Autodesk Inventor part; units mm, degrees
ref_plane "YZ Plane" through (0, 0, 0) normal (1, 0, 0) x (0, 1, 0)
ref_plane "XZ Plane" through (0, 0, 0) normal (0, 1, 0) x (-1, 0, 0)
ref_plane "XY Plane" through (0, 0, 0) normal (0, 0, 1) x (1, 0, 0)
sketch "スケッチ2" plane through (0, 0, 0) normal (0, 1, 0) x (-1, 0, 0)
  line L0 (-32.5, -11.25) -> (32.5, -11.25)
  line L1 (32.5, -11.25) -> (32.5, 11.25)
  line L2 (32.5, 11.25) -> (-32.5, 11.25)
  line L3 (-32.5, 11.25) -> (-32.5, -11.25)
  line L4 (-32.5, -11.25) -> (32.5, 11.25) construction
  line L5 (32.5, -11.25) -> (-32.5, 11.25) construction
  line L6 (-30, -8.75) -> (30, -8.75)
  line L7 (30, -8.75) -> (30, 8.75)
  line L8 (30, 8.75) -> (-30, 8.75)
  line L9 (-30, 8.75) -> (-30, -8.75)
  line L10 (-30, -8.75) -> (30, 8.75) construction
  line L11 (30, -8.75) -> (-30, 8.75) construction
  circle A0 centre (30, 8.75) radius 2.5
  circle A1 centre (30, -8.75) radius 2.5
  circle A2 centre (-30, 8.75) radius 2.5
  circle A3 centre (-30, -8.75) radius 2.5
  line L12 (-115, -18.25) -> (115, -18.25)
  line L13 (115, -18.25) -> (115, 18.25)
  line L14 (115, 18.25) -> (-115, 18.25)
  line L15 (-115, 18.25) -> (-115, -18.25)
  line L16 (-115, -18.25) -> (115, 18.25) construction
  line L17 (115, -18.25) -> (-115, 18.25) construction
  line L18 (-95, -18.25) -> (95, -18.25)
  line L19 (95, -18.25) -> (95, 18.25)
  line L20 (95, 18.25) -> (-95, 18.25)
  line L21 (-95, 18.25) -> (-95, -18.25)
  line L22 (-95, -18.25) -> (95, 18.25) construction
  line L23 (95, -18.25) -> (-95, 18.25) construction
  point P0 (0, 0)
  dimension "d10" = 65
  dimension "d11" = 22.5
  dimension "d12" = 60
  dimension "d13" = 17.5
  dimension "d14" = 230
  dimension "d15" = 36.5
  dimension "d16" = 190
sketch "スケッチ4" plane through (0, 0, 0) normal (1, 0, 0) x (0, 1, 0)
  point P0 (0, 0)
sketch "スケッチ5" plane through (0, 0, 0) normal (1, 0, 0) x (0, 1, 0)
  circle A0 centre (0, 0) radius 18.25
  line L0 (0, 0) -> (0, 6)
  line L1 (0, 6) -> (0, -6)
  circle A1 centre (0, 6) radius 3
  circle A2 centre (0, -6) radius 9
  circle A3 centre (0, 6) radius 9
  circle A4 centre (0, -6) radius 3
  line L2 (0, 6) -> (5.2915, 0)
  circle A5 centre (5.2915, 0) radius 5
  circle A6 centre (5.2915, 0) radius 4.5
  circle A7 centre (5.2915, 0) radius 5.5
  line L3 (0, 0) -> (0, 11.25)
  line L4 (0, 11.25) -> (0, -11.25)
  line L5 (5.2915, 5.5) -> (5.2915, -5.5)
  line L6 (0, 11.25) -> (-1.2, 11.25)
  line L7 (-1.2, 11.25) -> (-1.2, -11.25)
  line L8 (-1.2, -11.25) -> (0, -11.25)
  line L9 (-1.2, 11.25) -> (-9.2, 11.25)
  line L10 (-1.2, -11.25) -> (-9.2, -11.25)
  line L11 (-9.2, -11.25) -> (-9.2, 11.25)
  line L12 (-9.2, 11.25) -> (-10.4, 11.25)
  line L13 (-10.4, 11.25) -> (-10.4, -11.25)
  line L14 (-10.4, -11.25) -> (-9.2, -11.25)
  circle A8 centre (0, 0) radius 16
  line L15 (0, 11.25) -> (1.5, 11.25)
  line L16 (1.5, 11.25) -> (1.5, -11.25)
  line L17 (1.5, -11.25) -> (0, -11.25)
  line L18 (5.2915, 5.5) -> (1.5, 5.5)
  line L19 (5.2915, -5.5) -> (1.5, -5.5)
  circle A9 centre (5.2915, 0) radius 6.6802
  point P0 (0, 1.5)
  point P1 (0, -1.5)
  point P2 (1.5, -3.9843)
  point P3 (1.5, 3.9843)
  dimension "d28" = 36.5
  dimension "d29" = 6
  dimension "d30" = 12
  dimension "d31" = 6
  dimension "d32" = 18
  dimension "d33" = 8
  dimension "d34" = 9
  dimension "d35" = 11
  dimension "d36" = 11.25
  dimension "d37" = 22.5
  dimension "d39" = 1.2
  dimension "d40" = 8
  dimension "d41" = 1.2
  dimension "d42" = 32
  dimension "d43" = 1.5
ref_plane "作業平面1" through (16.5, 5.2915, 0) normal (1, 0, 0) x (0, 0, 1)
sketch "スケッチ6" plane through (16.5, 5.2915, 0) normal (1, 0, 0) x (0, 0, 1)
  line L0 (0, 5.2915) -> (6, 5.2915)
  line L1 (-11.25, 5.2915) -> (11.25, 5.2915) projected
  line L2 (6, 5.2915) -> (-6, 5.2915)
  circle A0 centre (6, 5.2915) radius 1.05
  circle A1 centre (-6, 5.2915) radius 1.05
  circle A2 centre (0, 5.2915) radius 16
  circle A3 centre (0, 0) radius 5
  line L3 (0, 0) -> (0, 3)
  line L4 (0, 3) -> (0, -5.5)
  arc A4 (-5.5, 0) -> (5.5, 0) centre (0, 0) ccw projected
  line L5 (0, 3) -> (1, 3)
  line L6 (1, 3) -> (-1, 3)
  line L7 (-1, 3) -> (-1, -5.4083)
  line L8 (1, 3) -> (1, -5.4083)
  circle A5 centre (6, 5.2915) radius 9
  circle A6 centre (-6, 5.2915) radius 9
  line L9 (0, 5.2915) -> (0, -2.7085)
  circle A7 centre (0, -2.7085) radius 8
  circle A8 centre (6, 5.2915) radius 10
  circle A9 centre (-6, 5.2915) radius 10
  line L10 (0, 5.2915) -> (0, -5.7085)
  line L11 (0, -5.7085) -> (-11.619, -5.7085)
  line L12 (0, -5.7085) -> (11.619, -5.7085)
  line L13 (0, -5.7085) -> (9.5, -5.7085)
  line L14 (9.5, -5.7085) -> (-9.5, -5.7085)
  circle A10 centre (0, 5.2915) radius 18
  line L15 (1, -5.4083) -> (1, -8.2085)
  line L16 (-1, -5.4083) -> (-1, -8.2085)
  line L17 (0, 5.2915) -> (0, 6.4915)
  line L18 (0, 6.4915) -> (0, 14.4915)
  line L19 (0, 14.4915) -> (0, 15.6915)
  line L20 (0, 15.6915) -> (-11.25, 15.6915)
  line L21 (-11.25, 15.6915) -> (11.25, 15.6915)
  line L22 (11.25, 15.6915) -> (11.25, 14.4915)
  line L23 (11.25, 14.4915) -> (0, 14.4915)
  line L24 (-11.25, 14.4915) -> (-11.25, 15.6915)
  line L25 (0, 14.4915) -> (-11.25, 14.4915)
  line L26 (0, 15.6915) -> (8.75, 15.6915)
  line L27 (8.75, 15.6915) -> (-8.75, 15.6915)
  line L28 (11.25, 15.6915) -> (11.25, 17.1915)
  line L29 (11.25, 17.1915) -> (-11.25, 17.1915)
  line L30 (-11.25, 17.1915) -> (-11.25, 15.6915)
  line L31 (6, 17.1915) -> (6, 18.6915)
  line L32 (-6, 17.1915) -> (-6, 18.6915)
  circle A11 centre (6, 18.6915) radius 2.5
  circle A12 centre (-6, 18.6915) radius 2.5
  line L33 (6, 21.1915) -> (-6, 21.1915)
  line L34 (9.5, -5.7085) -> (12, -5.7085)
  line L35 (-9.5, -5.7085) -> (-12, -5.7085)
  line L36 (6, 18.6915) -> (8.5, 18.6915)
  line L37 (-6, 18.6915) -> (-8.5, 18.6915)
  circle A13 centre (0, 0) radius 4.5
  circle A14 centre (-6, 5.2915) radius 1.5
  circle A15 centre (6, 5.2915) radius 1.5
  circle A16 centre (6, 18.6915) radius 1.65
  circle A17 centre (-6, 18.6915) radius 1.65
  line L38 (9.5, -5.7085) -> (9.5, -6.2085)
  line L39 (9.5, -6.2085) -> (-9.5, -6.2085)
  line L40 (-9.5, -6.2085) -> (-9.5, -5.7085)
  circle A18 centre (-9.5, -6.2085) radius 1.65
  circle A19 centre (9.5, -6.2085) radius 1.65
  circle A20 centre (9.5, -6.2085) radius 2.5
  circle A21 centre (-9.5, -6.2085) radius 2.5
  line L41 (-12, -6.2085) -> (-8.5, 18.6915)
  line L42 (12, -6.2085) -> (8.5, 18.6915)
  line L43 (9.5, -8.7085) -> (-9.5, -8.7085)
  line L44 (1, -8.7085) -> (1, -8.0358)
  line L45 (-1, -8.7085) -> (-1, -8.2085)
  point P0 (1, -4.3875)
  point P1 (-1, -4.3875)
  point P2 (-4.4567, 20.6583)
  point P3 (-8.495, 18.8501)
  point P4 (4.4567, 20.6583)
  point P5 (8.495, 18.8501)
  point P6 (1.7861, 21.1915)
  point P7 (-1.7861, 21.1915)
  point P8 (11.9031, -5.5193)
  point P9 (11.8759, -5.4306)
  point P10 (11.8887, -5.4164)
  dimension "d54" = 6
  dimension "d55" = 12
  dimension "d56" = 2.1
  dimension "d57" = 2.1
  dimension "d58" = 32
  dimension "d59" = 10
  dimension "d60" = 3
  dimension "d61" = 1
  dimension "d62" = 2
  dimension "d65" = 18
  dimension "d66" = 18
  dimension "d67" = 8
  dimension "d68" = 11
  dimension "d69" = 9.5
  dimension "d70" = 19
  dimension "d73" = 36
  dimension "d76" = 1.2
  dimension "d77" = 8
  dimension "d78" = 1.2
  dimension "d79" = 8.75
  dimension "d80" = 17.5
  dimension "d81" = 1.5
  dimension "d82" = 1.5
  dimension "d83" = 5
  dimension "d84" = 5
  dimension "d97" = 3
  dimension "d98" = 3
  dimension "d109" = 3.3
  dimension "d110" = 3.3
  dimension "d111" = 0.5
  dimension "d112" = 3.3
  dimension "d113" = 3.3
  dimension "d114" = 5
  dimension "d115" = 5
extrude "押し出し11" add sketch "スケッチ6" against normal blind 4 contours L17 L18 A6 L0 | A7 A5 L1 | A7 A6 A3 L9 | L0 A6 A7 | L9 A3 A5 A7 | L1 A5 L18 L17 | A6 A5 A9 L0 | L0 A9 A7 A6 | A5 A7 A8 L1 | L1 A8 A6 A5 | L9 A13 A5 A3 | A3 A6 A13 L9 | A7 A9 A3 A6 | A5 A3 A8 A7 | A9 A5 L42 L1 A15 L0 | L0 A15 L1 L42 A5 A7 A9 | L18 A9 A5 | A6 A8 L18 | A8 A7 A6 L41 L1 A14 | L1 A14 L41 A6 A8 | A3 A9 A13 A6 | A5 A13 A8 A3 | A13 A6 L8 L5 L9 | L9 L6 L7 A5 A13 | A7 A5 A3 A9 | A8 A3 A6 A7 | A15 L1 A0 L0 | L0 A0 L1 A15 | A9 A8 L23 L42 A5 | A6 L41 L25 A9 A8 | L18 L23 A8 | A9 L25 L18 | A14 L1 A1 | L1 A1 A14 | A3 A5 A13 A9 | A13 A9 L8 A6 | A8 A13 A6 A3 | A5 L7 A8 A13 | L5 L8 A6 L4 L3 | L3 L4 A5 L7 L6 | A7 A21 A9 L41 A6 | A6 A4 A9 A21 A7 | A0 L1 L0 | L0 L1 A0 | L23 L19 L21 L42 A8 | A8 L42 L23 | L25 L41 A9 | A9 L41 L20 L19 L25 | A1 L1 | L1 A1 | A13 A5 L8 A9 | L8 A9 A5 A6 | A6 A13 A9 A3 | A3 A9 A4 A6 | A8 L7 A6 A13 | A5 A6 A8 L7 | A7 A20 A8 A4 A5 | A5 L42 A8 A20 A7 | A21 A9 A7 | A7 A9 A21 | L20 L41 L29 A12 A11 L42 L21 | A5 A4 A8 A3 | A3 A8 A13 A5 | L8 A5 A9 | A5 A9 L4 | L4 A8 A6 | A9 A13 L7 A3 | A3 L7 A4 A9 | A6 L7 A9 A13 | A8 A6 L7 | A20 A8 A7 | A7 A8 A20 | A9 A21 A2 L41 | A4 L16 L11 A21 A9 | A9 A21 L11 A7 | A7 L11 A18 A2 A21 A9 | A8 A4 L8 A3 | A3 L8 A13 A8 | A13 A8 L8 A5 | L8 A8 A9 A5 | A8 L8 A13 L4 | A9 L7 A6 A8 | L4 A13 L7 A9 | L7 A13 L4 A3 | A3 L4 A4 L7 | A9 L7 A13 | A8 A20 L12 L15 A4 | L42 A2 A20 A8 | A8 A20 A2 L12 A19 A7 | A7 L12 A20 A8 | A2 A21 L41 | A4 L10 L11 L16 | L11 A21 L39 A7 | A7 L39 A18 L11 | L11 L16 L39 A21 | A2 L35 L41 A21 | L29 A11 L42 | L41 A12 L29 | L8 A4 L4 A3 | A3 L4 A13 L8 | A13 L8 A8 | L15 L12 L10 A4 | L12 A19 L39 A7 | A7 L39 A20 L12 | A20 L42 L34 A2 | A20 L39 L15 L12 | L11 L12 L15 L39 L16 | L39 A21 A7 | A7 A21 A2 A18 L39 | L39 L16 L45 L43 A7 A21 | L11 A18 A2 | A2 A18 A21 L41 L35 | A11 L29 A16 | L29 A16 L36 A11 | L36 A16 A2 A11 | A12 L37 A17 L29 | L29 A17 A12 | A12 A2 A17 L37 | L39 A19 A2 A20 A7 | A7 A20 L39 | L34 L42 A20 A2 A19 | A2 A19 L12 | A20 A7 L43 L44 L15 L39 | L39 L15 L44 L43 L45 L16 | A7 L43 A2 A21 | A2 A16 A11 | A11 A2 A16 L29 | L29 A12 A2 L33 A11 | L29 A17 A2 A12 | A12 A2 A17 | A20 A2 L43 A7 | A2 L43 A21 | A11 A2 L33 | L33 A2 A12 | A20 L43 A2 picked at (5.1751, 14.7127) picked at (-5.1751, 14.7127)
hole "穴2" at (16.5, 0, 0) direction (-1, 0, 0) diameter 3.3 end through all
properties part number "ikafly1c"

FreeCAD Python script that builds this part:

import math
import FreeCAD as App
import Part
import Sketcher

doc = App.newDocument("Part")
body = doc.addObject("PartDesign::Body", "Body")

sketch1 = body.newObject("Sketcher::SketchObject", "Sketch")
sketch1.AttachmentSupport = (doc.getObject("YZ_Plane"), [""])
sketch1.MapMode = "FlatFace"
sketch1.AttachmentOffset = App.Placement(App.Vector(0, 0, 16.5), App.Rotation())
sketch1.addGeometry([
    Part.ArcOfCircle(Part.Circle(App.Vector(-13.4, 6, 0), App.Vector(0, 0, 1), 2.5), math.radians(90), math.radians(180)),
    Part.LineSegment(App.Vector(-15.9, 6, 0), App.Vector(-15.9, -6, 0)),
    Part.ArcOfCircle(Part.Circle(App.Vector(-13.4, -6, 0), App.Vector(0, 0, 1), 2.5), math.radians(180), math.radians(270)),
    Part.LineSegment(App.Vector(-13.4, -8.5, 0), App.Vector(11.5, -12, 0)),
    Part.ArcOfCircle(Part.Circle(App.Vector(11.5, -9.5, 0), App.Vector(0, 0, 1), 2.5), math.radians(-90), math.radians(0)),
    Part.LineSegment(App.Vector(14, -9.5, 0), App.Vector(14, 9.5, 0)),
    Part.ArcOfCircle(Part.Circle(App.Vector(11.5, 9.5, 0), App.Vector(0, 0, 1), 2.5), math.radians(0), math.radians(90)),
    Part.LineSegment(App.Vector(11.5, 12, 0), App.Vector(10.810806, 11.903125, 0)),
    Part.ArcOfCircle(Part.Circle(App.Vector(11.5, 9.5, 0), App.Vector(0, 0, 1), 2.5), math.radians(106.002406), math.radians(108.129385)),
    Part.ArcOfCircle(Part.Circle(App.Vector(0, 0, 0), App.Vector(0, 0, 1), 16), math.radians(47.922851), math.radians(47.991154)),
    Part.LineSegment(App.Vector(10.707925, 11.888664, 0), App.Vector(-13.4, 8.5, 0)),
    Part.Circle(App.Vector(11.5, 9.5, 0), App.Vector(0, 0, 1), 1.65),
    Part.Circle(App.Vector(11.5, -9.5, 0), App.Vector(0, 0, 1), 1.65),
    Part.Circle(App.Vector(-13.4, -6, 0), App.Vector(0, 0, 1), 1.65),
    Part.Circle(App.Vector(-13.4, 6, 0), App.Vector(0, 0, 1), 1.65),
], False)
sketch1.addConstraint([
    Sketcher.Constraint("Tangent", 0, 2, 1, 1),
    Sketcher.Constraint("Tangent", 1, 2, 2, 1),
    Sketcher.Constraint("Coincident", 2, 2, 3, 1),
    Sketcher.Constraint("Coincident", 3, 2, 4, 1),
    Sketcher.Constraint("Tangent", 4, 2, 5, 1),
    Sketcher.Constraint("Tangent", 5, 2, 6, 1),
    Sketcher.Constraint("Coincident", 6, 2, 7, 1),
    Sketcher.Constraint("Coincident", 7, 2, 8, 1),
    Sketcher.Constraint("Coincident", 8, 2, 9, 1),
    Sketcher.Constraint("Coincident", 9, 2, 10, 1),
    Sketcher.Constraint("Coincident", 10, 2, 0, 1),
    Sketcher.Constraint("Vertical", 1),
    Sketcher.Constraint("Vertical", 5),
    Sketcher.Constraint("Coincident", 9, 3, -1, 1),
    Sketcher.Constraint("Coincident", 8, 3, 6, 3),
    Sketcher.Constraint("Coincident", 11, 3, 6, 3),
    Sketcher.Constraint("Coincident", 12, 3, 4, 3),
    Sketcher.Constraint("Coincident", 13, 3, 2, 3),
    Sketcher.Constraint("Coincident", 14, 3, 0, 3),
    Sketcher.Constraint("Equal", 0, 2),
    Sketcher.Constraint("Equal", 2, 4),
    Sketcher.Constraint("Equal", 4, 6),
    Sketcher.Constraint("Equal", 6, 8),
    Sketcher.Constraint("Equal", 11, 12),
    Sketcher.Constraint("Equal", 12, 13),
    Sketcher.Constraint("Equal", 13, 14),
    Sketcher.Constraint("Symmetric", 3, 2, 6, 2, -1),
    Sketcher.Constraint("Symmetric", 2, 2, 10, 2, -1),
    Sketcher.Constraint("Parallel", 7, 10),
    Sketcher.Constraint("Vertical", 14, 3, 2, 2),
    Sketcher.Constraint("Vertical", 12, 3, 3, 2),
    Sketcher.Constraint("Radius", 9, 16.0),
    Sketcher.Constraint("Diameter", 11, 3.3),
    Sketcher.Constraint("Radius", 0, 2.5),
    Sketcher.Constraint("DistanceY", 1, 2, 1, 1, 12.0),
    Sketcher.Constraint("DistanceY", 5, 1, 5, 2, 19.0),
    Sketcher.Constraint("DistanceX", -1, 1, 4, 2, 14.0),
    Sketcher.Constraint("DistanceX", 0, 3, -1, 1, 13.4),
    Sketcher.Constraint("Distance", 7, 0.696),
])
pad1 = body.newObject("PartDesign::Pad", "Pad")
pad1.Profile = sketch1
pad1.Length = 4
pad1.Reversed = True

sketch2 = body.newObject("Sketcher::SketchObject", "Sketch001")
sketch2.AttachmentSupport = (doc.getObject("YZ_Plane"), [""])
sketch2.MapMode = "FlatFace"
sketch2.AttachmentOffset = App.Placement(App.Vector(0, 0, 16.5), App.Rotation())
sketch2.addGeometry(Part.Circle(App.Vector(0, 0, 0), App.Vector(0, 0, 1), 1.65), False)
sketch2.addConstraint([
    Sketcher.Constraint("Coincident", 0, 3, -1, 1),
    Sketcher.Constraint("Diameter", 0, 3.3),
])
doc.recompute()
hole = body.newObject("PartDesign::Hole", "Hole")
hole.Profile = sketch2
hole.ThreadType = "None"
hole.Diameter = 3.3
hole.DepthType = "ThroughAll"

doc.recompute()
